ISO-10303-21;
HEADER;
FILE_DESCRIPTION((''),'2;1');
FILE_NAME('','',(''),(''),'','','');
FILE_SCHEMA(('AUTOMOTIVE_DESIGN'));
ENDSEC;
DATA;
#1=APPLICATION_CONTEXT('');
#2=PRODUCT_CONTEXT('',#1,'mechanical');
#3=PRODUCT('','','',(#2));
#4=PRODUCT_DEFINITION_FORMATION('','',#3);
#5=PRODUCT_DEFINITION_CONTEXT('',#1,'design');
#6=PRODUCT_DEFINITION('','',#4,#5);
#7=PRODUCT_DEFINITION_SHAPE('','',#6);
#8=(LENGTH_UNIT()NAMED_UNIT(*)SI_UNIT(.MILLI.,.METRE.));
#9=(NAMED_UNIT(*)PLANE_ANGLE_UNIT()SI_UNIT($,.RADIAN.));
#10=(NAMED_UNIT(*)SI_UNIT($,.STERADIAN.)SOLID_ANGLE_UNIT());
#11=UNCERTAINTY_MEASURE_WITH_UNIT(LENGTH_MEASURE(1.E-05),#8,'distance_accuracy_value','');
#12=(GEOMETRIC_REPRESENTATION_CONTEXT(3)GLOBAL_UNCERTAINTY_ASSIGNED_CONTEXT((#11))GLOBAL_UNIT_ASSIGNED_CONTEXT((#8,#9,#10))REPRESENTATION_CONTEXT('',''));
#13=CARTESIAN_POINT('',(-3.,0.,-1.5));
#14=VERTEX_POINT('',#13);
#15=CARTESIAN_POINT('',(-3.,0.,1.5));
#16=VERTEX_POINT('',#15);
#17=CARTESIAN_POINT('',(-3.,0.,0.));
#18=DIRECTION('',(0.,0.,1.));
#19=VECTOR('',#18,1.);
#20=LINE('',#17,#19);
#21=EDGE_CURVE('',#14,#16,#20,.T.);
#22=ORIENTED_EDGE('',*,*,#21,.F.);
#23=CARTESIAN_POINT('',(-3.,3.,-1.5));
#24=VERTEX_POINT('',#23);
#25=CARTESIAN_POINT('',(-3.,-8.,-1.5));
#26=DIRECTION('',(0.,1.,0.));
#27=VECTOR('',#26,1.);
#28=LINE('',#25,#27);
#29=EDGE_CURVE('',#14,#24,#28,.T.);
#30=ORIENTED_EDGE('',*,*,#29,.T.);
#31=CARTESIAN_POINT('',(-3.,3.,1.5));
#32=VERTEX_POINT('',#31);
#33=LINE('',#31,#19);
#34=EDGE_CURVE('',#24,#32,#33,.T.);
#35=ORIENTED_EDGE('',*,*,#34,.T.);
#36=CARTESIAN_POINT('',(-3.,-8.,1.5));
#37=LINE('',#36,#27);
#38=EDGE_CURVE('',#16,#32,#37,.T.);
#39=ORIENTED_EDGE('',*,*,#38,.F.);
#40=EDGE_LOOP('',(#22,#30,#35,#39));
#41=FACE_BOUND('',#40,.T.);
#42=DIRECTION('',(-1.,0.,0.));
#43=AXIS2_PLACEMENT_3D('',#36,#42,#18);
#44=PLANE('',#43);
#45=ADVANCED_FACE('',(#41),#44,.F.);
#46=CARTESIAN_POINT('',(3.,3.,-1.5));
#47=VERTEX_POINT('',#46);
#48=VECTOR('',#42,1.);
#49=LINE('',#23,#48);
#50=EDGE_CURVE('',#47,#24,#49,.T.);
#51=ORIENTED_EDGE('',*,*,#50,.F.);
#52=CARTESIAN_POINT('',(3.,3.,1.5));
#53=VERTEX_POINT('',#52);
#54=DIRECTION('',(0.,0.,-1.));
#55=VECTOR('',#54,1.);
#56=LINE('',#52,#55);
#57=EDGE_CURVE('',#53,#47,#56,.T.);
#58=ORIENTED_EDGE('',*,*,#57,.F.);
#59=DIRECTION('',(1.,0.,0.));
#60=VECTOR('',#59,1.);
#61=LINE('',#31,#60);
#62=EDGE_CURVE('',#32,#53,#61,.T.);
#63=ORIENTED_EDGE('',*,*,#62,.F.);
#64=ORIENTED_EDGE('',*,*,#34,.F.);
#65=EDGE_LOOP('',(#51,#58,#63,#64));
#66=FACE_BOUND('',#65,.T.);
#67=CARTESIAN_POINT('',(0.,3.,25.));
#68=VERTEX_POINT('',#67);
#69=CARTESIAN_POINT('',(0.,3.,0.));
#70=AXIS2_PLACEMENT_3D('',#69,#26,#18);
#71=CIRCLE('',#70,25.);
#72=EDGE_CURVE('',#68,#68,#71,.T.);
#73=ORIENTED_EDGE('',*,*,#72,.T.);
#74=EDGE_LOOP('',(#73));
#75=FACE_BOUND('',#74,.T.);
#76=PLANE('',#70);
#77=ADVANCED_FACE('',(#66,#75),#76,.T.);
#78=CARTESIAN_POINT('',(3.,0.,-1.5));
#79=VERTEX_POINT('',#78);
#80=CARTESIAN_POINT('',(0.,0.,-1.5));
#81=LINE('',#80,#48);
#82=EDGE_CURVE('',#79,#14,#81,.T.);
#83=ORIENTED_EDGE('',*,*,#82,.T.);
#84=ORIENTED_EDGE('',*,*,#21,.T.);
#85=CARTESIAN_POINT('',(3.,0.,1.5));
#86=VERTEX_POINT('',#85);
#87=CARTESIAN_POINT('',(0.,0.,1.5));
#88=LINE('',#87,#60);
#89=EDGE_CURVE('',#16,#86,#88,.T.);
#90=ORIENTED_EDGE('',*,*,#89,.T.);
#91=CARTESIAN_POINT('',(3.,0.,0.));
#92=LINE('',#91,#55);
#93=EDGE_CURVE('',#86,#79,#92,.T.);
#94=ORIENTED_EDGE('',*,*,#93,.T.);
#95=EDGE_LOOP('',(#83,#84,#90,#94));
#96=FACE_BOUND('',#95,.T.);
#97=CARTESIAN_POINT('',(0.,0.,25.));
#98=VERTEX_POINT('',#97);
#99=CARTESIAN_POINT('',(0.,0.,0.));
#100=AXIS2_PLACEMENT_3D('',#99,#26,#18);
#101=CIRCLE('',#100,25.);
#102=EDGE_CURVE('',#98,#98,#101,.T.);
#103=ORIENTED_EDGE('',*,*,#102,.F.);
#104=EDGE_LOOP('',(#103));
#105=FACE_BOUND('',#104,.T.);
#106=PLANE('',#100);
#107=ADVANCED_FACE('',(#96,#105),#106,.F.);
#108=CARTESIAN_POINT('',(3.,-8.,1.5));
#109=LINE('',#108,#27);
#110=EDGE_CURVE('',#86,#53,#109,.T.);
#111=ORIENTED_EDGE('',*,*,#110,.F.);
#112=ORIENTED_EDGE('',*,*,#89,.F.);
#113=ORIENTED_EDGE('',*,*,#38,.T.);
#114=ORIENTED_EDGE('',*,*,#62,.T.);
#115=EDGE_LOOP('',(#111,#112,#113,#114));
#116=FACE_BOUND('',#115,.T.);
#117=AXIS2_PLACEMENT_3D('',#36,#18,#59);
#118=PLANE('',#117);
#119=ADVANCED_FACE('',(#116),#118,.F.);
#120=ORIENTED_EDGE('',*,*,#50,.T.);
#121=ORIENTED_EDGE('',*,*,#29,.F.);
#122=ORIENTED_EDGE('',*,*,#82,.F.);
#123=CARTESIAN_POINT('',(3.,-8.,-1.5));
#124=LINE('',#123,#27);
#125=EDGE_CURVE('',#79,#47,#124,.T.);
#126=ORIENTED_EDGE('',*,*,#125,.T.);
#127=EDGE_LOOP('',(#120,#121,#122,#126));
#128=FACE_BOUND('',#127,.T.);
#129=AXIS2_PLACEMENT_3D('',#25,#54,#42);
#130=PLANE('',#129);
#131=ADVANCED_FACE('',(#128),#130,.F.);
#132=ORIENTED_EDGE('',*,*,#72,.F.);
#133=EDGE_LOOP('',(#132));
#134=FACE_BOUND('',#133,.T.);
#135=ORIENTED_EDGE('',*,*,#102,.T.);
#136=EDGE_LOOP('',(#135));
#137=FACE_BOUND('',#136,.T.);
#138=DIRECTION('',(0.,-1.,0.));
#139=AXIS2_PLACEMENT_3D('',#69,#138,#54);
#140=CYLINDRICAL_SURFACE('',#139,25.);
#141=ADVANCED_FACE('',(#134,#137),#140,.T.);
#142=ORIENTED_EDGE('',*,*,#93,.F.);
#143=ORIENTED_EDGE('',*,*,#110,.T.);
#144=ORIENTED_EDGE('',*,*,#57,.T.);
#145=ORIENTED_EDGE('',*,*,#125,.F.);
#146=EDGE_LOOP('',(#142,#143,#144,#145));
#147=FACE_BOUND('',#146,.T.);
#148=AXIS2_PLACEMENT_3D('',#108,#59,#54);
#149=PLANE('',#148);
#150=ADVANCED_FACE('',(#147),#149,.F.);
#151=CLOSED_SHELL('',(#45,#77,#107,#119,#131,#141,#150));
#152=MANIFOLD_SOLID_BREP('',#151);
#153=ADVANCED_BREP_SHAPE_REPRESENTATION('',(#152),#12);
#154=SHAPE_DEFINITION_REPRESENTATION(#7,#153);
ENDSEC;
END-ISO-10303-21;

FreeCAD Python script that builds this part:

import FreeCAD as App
import Part
import Sketcher

V = App.Vector
Q = App.Units.Quantity

doc = App.newDocument("Part")
params = doc.addObject("Spreadsheet::Sheet", "Params")
for row, (alias, value) in enumerate([
    ("sketch1_diameter", "50 mm"),
    ("pad1_length", "3 mm"),
    ("sketch2_width", "6 mm"),
    ("sketch2_height", "3 mm"),
    ("pocket1_length", "11 mm"),
], start=1):
    params.set(f"A{row}", alias)
    params.set(f"B{row}", "=" + value)
    params.setAlias(f"B{row}", alias)

body = doc.addObject("PartDesign::Body", "Body")

# Sketch on XZ plane
sketch1 = doc.addObject("Sketcher::SketchObject", "Sketch")
body.addObject(sketch1)
sketch1.AttachmentSupport = (doc.XZ_Plane, [""])
sketch1.MapMode = "FlatFace"
sketch1.addGeometry(Part.Circle(V(0, 0, 0), V(0, 0, 1), 25), False)
sketch1.addConstraint(Sketcher.Constraint("Coincident", 0, 3, -1, 1))
sketch1.addConstraint(Sketcher.Constraint("Diameter", 0, Q("50 mm")))
sketch1.setExpression("Constraints[1]", "Params.sketch1_diameter")
pad1 = doc.addObject("PartDesign::Pad", "Pad")
body.addObject(pad1)
pad1.Profile = sketch1
pad1.setExpression("Length", "Params.pad1_length")
pad1.Reversed = True

# Sketch on XZ plane
sketch2 = doc.addObject("Sketcher::SketchObject", "Sketch001")
body.addObject(sketch2)
sketch2.AttachmentSupport = (doc.XZ_Plane, [""])
sketch2.MapMode = "FlatFace"
sketch2.AttachmentOffset = App.Placement(V(0, 0, -3), App.Rotation())
sketch2.addGeometry(Part.LineSegment(V(-3, -1.5, 0), V(-3, 1.5, 0)), False)
sketch2.addGeometry(Part.LineSegment(V(-3, 1.5, 0), V(3, 1.5, 0)), False)
sketch2.addGeometry(Part.LineSegment(V(3, 1.5, 0), V(3, -1.5, 0)), False)
sketch2.addGeometry(Part.LineSegment(V(3, -1.5, 0), V(-3, -1.5, 0)), False)
sketch2.addConstraint(Sketcher.Constraint("Coincident", 0, 2, 1, 1))
sketch2.addConstraint(Sketcher.Constraint("Coincident", 1, 2, 2, 1))
sketch2.addConstraint(Sketcher.Constraint("Coincident", 2, 2, 3, 1))
sketch2.addConstraint(Sketcher.Constraint("Coincident", 3, 2, 0, 1))
sketch2.addConstraint(Sketcher.Constraint("Vertical", 0))
sketch2.addConstraint(Sketcher.Constraint("Horizontal", 1))
sketch2.addConstraint(Sketcher.Constraint("Vertical", 2))
sketch2.addConstraint(Sketcher.Constraint("Horizontal", 3))
sketch2.addConstraint(Sketcher.Constraint("Symmetric", 0, 2, 2, 2, -1, 1))
sketch2.addConstraint(Sketcher.Constraint("DistanceX", 1, 1, 1, 2, Q("6 mm")))
sketch2.addConstraint(Sketcher.Constraint("DistanceY", 0, 1, 0, 2, Q("3 mm")))
sketch2.setExpression("Constraints[9]", "Params.sketch2_width")
sketch2.setExpression("Constraints[10]", "Params.sketch2_height")
pocket1 = doc.addObject("PartDesign::Pocket", "Pocket")
body.addObject(pocket1)
pocket1.Profile = sketch2
pocket1.setExpression("Length", "Params.pocket1_length")
pocket1.Reversed = True

doc.recompute()
